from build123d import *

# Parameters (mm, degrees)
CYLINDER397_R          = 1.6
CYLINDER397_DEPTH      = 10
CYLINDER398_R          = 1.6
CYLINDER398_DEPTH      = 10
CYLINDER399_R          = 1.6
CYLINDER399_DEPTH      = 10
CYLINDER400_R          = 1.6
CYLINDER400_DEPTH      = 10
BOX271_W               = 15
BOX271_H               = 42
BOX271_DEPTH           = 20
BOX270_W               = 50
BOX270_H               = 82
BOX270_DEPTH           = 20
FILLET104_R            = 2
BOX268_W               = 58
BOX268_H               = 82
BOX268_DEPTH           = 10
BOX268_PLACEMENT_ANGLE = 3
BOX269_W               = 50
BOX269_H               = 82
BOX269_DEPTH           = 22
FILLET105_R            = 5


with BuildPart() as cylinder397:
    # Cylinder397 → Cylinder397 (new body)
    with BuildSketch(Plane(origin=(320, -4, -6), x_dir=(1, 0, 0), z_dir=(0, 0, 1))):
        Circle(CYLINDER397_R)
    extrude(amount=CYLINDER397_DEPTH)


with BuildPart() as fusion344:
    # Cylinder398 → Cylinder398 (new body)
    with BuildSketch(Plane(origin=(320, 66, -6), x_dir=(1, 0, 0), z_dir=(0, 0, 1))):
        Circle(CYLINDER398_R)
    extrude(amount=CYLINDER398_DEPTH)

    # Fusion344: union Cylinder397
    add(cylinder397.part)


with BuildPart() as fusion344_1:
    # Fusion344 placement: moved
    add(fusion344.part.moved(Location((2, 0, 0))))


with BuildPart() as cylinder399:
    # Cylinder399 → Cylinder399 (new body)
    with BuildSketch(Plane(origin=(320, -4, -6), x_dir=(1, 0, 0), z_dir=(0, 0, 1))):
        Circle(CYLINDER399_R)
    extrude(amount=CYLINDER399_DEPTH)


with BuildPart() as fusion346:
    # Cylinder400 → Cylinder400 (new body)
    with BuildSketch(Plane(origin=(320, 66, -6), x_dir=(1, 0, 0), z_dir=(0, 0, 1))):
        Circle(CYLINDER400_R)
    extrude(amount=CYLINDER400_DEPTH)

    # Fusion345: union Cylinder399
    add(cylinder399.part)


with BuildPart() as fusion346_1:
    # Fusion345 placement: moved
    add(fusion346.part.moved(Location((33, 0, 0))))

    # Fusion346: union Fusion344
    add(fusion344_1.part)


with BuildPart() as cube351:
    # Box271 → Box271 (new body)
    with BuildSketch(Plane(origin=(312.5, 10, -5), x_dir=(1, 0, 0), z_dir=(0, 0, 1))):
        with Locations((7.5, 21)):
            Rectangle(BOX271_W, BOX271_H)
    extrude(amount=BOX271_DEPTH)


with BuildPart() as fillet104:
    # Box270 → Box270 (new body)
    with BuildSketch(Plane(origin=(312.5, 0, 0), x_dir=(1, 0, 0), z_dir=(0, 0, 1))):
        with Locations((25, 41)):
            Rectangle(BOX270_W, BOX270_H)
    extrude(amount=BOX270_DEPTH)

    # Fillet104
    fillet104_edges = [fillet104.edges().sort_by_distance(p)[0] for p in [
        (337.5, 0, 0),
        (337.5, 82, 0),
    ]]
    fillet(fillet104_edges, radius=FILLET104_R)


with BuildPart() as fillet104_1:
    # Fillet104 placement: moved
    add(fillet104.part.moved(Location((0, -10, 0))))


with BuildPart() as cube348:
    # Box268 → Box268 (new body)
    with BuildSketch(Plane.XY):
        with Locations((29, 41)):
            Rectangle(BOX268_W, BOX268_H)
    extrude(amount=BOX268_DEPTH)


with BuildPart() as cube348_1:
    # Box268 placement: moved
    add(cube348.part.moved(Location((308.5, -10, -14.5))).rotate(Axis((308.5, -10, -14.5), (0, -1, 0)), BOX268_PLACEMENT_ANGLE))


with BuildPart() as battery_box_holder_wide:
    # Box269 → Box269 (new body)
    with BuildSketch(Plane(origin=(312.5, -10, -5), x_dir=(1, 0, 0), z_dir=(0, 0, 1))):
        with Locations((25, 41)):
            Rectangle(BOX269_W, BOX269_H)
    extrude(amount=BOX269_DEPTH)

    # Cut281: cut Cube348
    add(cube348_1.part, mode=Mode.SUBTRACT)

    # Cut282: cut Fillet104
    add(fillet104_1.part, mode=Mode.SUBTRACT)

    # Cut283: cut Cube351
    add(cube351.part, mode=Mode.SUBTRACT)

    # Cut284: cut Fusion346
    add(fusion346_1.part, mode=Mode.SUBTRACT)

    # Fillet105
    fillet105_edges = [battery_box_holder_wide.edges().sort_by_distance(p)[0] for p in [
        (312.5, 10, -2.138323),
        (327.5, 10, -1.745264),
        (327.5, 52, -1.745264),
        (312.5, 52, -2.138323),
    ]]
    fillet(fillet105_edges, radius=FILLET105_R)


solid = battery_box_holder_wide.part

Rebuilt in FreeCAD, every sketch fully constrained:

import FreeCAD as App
import Part
import Sketcher

V = App.Vector


def edges_at(feature, points):
    """Names of the edges that pass closest to the given points."""
    edges = feature.Shape.Edges
    near = lambda p: min(range(len(edges)), key=lambda i: edges[i].distToShape(Part.Vertex(*p))[0])
    return sorted({f"Edge{near(p) + 1}" for p in points})


def add_polygon(sketch, points):
    """Adds a closed chain of lines whose ends are joined by coincident constraints."""
    first, n = sketch.GeometryCount, len(points)
    for a, b in zip(points, points[1:] + points[:1]):
        sketch.addGeometry(Part.LineSegment(App.Vector(*a, 0), App.Vector(*b, 0)), False)
    for i in range(n):
        sketch.addConstraint(Sketcher.Constraint("Coincident", first + i, 2, first + (i + 1) % n, 1))

doc = App.newDocument("Part")
body = doc.addObject("PartDesign::Body", "Body")

# Sketch on XY plane
sketch1 = body.newObject("Sketcher::SketchObject", "Sketch")
sketch1.AttachmentSupport = (doc.getObject("XY_Plane"), [""])
sketch1.MapMode = "FlatFace"
sketch1.AttachmentOffset = App.Placement(V(0, 0, -6), App.Rotation())
sketch1.addGeometry(Part.Circle(V(320, -4, 0), V(0, 0, 1), 1.6), False)
sketch1.addConstraint(Sketcher.Constraint("Diameter", 0, 3.2))
sketch1.addConstraint(Sketcher.Constraint("DistanceX", -1, 1, 0, 3, 320.0))
sketch1.addConstraint(Sketcher.Constraint("DistanceY", 0, 3, -1, 1, 4.0))
pad1 = body.newObject("PartDesign::Pad", "Pad")
pad1.Profile = sketch1
pad1.Length = 10
body2 = doc.addObject("PartDesign::Body", "Body001")
body2.AllowCompound = True

# Sketch on XY plane
sketch2 = body2.newObject("Sketcher::SketchObject", "Sketch001")
sketch2.AttachmentSupport = (doc.getObject("XY_Plane001"), [""])
sketch2.MapMode = "FlatFace"
sketch2.AttachmentOffset = App.Placement(V(0, 0, -6), App.Rotation())
sketch2.addGeometry(Part.Circle(V(320, 66, 0), V(0, 0, 1), 1.6), False)
sketch2.addConstraint(Sketcher.Constraint("Diameter", 0, 3.2))
sketch2.addConstraint(Sketcher.Constraint("DistanceX", -1, 1, 0, 3, 320.0))
sketch2.addConstraint(Sketcher.Constraint("DistanceY", -1, 1, 0, 3, 66.0))
pad2 = body2.newObject("PartDesign::Pad", "Pad001")
pad2.Profile = sketch2
pad2.Length = 10
doc.recompute()

boolean = body2.newObject("PartDesign::Boolean", "Boolean")
boolean.Type = "Fuse"
boolean.addObjects([body])
body3 = doc.addObject("PartDesign::Body", "Body002")
body3.AllowCompound = True
doc.recompute()

body2.Placement = App.Placement(V(2, 0, 0), App.Rotation(V(0, 0, 1), 0))
boolean2 = body3.newObject("PartDesign::Boolean", "Boolean001")
boolean2.Type = "Fuse"
boolean2.addObjects([body2])
body4 = doc.addObject("PartDesign::Body", "Body003")

# Sketch on XY plane
sketch3 = body4.newObject("Sketcher::SketchObject", "Sketch002")
sketch3.AttachmentSupport = (doc.getObject("XY_Plane003"), [""])
sketch3.MapMode = "FlatFace"
sketch3.AttachmentOffset = App.Placement(V(0, 0, -6), App.Rotation())
sketch3.addGeometry(Part.Circle(V(320, -4, 0), V(0, 0, 1), 1.6), False)
sketch3.addConstraint(Sketcher.Constraint("Diameter", 0, 3.2))
sketch3.addConstraint(Sketcher.Constraint("DistanceX", -1, 1, 0, 3, 320.0))
sketch3.addConstraint(Sketcher.Constraint("DistanceY", 0, 3, -1, 1, 4.0))
pad3 = body4.newObject("PartDesign::Pad", "Pad002")
pad3.Profile = sketch3
pad3.Length = 10
body5 = doc.addObject("PartDesign::Body", "Body004")
body5.AllowCompound = True

# Sketch on XY plane
sketch4 = body5.newObject("Sketcher::SketchObject", "Sketch003")
sketch4.AttachmentSupport = (doc.getObject("XY_Plane004"), [""])
sketch4.MapMode = "FlatFace"
sketch4.AttachmentOffset = App.Placement(V(0, 0, -6), App.Rotation())
sketch4.addGeometry(Part.Circle(V(320, 66, 0), V(0, 0, 1), 1.6), False)
sketch4.addConstraint(Sketcher.Constraint("Diameter", 0, 3.2))
sketch4.addConstraint(Sketcher.Constraint("DistanceX", -1, 1, 0, 3, 320.0))
sketch4.addConstraint(Sketcher.Constraint("DistanceY", -1, 1, 0, 3, 66.0))
pad4 = body5.newObject("PartDesign::Pad", "Pad003")
pad4.Profile = sketch4
pad4.Length = 10
doc.recompute()

boolean3 = body5.newObject("PartDesign::Boolean", "Boolean002")
boolean3.Type = "Fuse"
boolean3.addObjects([body4])
body6 = doc.addObject("PartDesign::Body", "Body005")
body6.AllowCompound = True
doc.recompute()

body5.Placement = App.Placement(V(33, 0, 0), App.Rotation(V(0, 0, 1), 0))
boolean4 = body6.newObject("PartDesign::Boolean", "Boolean003")
boolean4.Type = "Fuse"
boolean4.addObjects([body5])
doc.recompute()

boolean5 = body6.newObject("PartDesign::Boolean", "Boolean004")
boolean5.Type = "Fuse"
boolean5.addObjects([body3])
body7 = doc.addObject("PartDesign::Body", "Body006")

# Sketch on XY plane
sketch5 = body7.newObject("Sketcher::SketchObject", "Sketch004")
sketch5.AttachmentSupport = (doc.getObject("XY_Plane006"), [""])
sketch5.MapMode = "FlatFace"
sketch5.AttachmentOffset = App.Placement(V(0, 0, -5), App.Rotation())
add_polygon(sketch5, [(312, 52), (312, 10), (328, 10), (328, 52)])  # lines 0-3
sketch5.addConstraint(Sketcher.Constraint("Vertical", 0))
sketch5.addConstraint(Sketcher.Constraint("Horizontal", 1))
sketch5.addConstraint(Sketcher.Constraint("Vertical", 2))
sketch5.addConstraint(Sketcher.Constraint("Horizontal", 3))
sketch5.addConstraint(Sketcher.Constraint("DistanceX", 1, 1, 1, 2, 15.0))
sketch5.addConstraint(Sketcher.Constraint("DistanceY", 0, 2, 0, 1, 42.0))
sketch5.addConstraint(Sketcher.Constraint("DistanceY", -1, 1, 0, 2, 10.0))
sketch5.addConstraint(Sketcher.Constraint("DistanceX", -1, 1, 0, 2, 312.5))
pad5 = body7.newObject("PartDesign::Pad", "Pad004")
pad5.Profile = sketch5
pad5.Length = 20
body8 = doc.addObject("PartDesign::Body", "Body007")

# Sketch on XY plane
sketch6 = body8.newObject("Sketcher::SketchObject", "Sketch005")
sketch6.AttachmentSupport = (doc.getObject("XY_Plane007"), [""])
sketch6.MapMode = "FlatFace"
add_polygon(sketch6, [(312, 82), (312, 0), (362, 0), (362, 82)])  # lines 0-3
sketch6.addConstraint(Sketcher.Constraint("Vertical", 0))
sketch6.addConstraint(Sketcher.Constraint("Horizontal", 1))
sketch6.addConstraint(Sketcher.Constraint("Vertical", 2))
sketch6.addConstraint(Sketcher.Constraint("Horizontal", 3))
sketch6.addConstraint(Sketcher.Constraint("PointOnObject", 0, 2, -1))
sketch6.addConstraint(Sketcher.Constraint("DistanceX", 1, 1, 1, 2, 50.0))
sketch6.addConstraint(Sketcher.Constraint("DistanceY", 0, 2, 0, 1, 82.0))
sketch6.addConstraint(Sketcher.Constraint("DistanceX", -1, 1, 0, 2, 312.5))
pad6 = body8.newObject("PartDesign::Pad", "Pad005")
pad6.Profile = sketch6
pad6.Length = 20
doc.recompute()

fillet = body8.newObject("PartDesign::Fillet", "Fillet")
fillet.Base = (pad6, edges_at(pad6, [(337.5, 0, 0), (337.5, 82, 0)]))
fillet.Radius = 2
body9 = doc.addObject("PartDesign::Body", "Body008")
doc.recompute()

body8.Placement = App.Placement(V(0, -10, 0), App.Rotation(V(0, 0, 1), 0))
boolean6 = body9.newObject("PartDesign::Boolean", "Boolean005")
boolean6.Type = "Fuse"
boolean6.addObjects([body8])
body10 = doc.addObject("PartDesign::Body", "Body009")

# Sketch on XY plane
sketch7 = body10.newObject("Sketcher::SketchObject", "Sketch006")
sketch7.AttachmentSupport = (doc.getObject("XY_Plane009"), [""])
sketch7.MapMode = "FlatFace"
add_polygon(sketch7, [(0, 82), (0, 0), (58, 0), (58, 82)])  # lines 0-3
sketch7.addConstraint(Sketcher.Constraint("Vertical", 0))
sketch7.addConstraint(Sketcher.Constraint("Horizontal", 1))
sketch7.addConstraint(Sketcher.Constraint("Vertical", 2))
sketch7.addConstraint(Sketcher.Constraint("Horizontal", 3))
sketch7.addConstraint(Sketcher.Constraint("Coincident", 0, 2, -1, 1))
sketch7.addConstraint(Sketcher.Constraint("DistanceX", 1, 1, 1, 2, 58.0))
sketch7.addConstraint(Sketcher.Constraint("DistanceY", 0, 2, 0, 1, 82.0))
pad7 = body10.newObject("PartDesign::Pad", "Pad006")
pad7.Profile = sketch7
pad7.Length = 10
body11 = doc.addObject("PartDesign::Body", "Body010")
doc.recompute()

body10.Placement = App.Placement(V(308.5, -10, -14.5), App.Rotation(V(0, -1, 0), 3))
boolean7 = body11.newObject("PartDesign::Boolean", "Boolean006")
boolean7.Type = "Fuse"
boolean7.addObjects([body10])
body12 = doc.addObject("PartDesign::Body", "Body011")

# Sketch on XY plane
sketch8 = body12.newObject("Sketcher::SketchObject", "Sketch007")
sketch8.AttachmentSupport = (doc.getObject("XY_Plane011"), [""])
sketch8.MapMode = "FlatFace"
sketch8.AttachmentOffset = App.Placement(V(0, 0, -5), App.Rotation())
add_polygon(sketch8, [(312, 72), (312, -10), (362, -10), (362, 72)])  # lines 0-3
sketch8.addConstraint(Sketcher.Constraint("Vertical", 0))
sketch8.addConstraint(Sketcher.Constraint("Horizontal", 1))
sketch8.addConstraint(Sketcher.Constraint("Vertical", 2))
sketch8.addConstraint(Sketcher.Constraint("Horizontal", 3))
sketch8.addConstraint(Sketcher.Constraint("DistanceX", 1, 1, 1, 2, 50.0))
sketch8.addConstraint(Sketcher.Constraint("DistanceY", 0, 2, 0, 1, 82.0))
sketch8.addConstraint(Sketcher.Constraint("DistanceY", 0, 2, -1, 1, 10.0))
sketch8.addConstraint(Sketcher.Constraint("DistanceX", -1, 1, 0, 2, 312.5))
pad8 = body12.newObject("PartDesign::Pad", "Pad007")
pad8.Profile = sketch8
pad8.Length = 22
doc.recompute()

boolean8 = body12.newObject("PartDesign::Boolean", "Boolean007")
boolean8.Type = "Cut"
boolean8.addObjects([body11])
doc.recompute()

boolean9 = body12.newObject("PartDesign::Boolean", "Boolean008")
boolean9.Type = "Cut"
boolean9.addObjects([body9])
doc.recompute()

boolean10 = body12.newObject("PartDesign::Boolean", "Boolean009")
boolean10.Type = "Cut"
boolean10.addObjects([body7])
doc.recompute()

boolean11 = body12.newObject("PartDesign::Boolean", "Boolean010")
boolean11.Type = "Cut"
boolean11.addObjects([body6])
doc.recompute()

fillet2 = body12.newObject("PartDesign::Fillet", "Fillet001")
fillet2.Base = (boolean11, edges_at(boolean11, [
    (312.5, 10, -2.138),
    (327.5, 10, -1.745),
    (327.5, 52, -1.745),
    (312.5, 52, -2.138),
]))
fillet2.Radius = 5

doc.recompute()
